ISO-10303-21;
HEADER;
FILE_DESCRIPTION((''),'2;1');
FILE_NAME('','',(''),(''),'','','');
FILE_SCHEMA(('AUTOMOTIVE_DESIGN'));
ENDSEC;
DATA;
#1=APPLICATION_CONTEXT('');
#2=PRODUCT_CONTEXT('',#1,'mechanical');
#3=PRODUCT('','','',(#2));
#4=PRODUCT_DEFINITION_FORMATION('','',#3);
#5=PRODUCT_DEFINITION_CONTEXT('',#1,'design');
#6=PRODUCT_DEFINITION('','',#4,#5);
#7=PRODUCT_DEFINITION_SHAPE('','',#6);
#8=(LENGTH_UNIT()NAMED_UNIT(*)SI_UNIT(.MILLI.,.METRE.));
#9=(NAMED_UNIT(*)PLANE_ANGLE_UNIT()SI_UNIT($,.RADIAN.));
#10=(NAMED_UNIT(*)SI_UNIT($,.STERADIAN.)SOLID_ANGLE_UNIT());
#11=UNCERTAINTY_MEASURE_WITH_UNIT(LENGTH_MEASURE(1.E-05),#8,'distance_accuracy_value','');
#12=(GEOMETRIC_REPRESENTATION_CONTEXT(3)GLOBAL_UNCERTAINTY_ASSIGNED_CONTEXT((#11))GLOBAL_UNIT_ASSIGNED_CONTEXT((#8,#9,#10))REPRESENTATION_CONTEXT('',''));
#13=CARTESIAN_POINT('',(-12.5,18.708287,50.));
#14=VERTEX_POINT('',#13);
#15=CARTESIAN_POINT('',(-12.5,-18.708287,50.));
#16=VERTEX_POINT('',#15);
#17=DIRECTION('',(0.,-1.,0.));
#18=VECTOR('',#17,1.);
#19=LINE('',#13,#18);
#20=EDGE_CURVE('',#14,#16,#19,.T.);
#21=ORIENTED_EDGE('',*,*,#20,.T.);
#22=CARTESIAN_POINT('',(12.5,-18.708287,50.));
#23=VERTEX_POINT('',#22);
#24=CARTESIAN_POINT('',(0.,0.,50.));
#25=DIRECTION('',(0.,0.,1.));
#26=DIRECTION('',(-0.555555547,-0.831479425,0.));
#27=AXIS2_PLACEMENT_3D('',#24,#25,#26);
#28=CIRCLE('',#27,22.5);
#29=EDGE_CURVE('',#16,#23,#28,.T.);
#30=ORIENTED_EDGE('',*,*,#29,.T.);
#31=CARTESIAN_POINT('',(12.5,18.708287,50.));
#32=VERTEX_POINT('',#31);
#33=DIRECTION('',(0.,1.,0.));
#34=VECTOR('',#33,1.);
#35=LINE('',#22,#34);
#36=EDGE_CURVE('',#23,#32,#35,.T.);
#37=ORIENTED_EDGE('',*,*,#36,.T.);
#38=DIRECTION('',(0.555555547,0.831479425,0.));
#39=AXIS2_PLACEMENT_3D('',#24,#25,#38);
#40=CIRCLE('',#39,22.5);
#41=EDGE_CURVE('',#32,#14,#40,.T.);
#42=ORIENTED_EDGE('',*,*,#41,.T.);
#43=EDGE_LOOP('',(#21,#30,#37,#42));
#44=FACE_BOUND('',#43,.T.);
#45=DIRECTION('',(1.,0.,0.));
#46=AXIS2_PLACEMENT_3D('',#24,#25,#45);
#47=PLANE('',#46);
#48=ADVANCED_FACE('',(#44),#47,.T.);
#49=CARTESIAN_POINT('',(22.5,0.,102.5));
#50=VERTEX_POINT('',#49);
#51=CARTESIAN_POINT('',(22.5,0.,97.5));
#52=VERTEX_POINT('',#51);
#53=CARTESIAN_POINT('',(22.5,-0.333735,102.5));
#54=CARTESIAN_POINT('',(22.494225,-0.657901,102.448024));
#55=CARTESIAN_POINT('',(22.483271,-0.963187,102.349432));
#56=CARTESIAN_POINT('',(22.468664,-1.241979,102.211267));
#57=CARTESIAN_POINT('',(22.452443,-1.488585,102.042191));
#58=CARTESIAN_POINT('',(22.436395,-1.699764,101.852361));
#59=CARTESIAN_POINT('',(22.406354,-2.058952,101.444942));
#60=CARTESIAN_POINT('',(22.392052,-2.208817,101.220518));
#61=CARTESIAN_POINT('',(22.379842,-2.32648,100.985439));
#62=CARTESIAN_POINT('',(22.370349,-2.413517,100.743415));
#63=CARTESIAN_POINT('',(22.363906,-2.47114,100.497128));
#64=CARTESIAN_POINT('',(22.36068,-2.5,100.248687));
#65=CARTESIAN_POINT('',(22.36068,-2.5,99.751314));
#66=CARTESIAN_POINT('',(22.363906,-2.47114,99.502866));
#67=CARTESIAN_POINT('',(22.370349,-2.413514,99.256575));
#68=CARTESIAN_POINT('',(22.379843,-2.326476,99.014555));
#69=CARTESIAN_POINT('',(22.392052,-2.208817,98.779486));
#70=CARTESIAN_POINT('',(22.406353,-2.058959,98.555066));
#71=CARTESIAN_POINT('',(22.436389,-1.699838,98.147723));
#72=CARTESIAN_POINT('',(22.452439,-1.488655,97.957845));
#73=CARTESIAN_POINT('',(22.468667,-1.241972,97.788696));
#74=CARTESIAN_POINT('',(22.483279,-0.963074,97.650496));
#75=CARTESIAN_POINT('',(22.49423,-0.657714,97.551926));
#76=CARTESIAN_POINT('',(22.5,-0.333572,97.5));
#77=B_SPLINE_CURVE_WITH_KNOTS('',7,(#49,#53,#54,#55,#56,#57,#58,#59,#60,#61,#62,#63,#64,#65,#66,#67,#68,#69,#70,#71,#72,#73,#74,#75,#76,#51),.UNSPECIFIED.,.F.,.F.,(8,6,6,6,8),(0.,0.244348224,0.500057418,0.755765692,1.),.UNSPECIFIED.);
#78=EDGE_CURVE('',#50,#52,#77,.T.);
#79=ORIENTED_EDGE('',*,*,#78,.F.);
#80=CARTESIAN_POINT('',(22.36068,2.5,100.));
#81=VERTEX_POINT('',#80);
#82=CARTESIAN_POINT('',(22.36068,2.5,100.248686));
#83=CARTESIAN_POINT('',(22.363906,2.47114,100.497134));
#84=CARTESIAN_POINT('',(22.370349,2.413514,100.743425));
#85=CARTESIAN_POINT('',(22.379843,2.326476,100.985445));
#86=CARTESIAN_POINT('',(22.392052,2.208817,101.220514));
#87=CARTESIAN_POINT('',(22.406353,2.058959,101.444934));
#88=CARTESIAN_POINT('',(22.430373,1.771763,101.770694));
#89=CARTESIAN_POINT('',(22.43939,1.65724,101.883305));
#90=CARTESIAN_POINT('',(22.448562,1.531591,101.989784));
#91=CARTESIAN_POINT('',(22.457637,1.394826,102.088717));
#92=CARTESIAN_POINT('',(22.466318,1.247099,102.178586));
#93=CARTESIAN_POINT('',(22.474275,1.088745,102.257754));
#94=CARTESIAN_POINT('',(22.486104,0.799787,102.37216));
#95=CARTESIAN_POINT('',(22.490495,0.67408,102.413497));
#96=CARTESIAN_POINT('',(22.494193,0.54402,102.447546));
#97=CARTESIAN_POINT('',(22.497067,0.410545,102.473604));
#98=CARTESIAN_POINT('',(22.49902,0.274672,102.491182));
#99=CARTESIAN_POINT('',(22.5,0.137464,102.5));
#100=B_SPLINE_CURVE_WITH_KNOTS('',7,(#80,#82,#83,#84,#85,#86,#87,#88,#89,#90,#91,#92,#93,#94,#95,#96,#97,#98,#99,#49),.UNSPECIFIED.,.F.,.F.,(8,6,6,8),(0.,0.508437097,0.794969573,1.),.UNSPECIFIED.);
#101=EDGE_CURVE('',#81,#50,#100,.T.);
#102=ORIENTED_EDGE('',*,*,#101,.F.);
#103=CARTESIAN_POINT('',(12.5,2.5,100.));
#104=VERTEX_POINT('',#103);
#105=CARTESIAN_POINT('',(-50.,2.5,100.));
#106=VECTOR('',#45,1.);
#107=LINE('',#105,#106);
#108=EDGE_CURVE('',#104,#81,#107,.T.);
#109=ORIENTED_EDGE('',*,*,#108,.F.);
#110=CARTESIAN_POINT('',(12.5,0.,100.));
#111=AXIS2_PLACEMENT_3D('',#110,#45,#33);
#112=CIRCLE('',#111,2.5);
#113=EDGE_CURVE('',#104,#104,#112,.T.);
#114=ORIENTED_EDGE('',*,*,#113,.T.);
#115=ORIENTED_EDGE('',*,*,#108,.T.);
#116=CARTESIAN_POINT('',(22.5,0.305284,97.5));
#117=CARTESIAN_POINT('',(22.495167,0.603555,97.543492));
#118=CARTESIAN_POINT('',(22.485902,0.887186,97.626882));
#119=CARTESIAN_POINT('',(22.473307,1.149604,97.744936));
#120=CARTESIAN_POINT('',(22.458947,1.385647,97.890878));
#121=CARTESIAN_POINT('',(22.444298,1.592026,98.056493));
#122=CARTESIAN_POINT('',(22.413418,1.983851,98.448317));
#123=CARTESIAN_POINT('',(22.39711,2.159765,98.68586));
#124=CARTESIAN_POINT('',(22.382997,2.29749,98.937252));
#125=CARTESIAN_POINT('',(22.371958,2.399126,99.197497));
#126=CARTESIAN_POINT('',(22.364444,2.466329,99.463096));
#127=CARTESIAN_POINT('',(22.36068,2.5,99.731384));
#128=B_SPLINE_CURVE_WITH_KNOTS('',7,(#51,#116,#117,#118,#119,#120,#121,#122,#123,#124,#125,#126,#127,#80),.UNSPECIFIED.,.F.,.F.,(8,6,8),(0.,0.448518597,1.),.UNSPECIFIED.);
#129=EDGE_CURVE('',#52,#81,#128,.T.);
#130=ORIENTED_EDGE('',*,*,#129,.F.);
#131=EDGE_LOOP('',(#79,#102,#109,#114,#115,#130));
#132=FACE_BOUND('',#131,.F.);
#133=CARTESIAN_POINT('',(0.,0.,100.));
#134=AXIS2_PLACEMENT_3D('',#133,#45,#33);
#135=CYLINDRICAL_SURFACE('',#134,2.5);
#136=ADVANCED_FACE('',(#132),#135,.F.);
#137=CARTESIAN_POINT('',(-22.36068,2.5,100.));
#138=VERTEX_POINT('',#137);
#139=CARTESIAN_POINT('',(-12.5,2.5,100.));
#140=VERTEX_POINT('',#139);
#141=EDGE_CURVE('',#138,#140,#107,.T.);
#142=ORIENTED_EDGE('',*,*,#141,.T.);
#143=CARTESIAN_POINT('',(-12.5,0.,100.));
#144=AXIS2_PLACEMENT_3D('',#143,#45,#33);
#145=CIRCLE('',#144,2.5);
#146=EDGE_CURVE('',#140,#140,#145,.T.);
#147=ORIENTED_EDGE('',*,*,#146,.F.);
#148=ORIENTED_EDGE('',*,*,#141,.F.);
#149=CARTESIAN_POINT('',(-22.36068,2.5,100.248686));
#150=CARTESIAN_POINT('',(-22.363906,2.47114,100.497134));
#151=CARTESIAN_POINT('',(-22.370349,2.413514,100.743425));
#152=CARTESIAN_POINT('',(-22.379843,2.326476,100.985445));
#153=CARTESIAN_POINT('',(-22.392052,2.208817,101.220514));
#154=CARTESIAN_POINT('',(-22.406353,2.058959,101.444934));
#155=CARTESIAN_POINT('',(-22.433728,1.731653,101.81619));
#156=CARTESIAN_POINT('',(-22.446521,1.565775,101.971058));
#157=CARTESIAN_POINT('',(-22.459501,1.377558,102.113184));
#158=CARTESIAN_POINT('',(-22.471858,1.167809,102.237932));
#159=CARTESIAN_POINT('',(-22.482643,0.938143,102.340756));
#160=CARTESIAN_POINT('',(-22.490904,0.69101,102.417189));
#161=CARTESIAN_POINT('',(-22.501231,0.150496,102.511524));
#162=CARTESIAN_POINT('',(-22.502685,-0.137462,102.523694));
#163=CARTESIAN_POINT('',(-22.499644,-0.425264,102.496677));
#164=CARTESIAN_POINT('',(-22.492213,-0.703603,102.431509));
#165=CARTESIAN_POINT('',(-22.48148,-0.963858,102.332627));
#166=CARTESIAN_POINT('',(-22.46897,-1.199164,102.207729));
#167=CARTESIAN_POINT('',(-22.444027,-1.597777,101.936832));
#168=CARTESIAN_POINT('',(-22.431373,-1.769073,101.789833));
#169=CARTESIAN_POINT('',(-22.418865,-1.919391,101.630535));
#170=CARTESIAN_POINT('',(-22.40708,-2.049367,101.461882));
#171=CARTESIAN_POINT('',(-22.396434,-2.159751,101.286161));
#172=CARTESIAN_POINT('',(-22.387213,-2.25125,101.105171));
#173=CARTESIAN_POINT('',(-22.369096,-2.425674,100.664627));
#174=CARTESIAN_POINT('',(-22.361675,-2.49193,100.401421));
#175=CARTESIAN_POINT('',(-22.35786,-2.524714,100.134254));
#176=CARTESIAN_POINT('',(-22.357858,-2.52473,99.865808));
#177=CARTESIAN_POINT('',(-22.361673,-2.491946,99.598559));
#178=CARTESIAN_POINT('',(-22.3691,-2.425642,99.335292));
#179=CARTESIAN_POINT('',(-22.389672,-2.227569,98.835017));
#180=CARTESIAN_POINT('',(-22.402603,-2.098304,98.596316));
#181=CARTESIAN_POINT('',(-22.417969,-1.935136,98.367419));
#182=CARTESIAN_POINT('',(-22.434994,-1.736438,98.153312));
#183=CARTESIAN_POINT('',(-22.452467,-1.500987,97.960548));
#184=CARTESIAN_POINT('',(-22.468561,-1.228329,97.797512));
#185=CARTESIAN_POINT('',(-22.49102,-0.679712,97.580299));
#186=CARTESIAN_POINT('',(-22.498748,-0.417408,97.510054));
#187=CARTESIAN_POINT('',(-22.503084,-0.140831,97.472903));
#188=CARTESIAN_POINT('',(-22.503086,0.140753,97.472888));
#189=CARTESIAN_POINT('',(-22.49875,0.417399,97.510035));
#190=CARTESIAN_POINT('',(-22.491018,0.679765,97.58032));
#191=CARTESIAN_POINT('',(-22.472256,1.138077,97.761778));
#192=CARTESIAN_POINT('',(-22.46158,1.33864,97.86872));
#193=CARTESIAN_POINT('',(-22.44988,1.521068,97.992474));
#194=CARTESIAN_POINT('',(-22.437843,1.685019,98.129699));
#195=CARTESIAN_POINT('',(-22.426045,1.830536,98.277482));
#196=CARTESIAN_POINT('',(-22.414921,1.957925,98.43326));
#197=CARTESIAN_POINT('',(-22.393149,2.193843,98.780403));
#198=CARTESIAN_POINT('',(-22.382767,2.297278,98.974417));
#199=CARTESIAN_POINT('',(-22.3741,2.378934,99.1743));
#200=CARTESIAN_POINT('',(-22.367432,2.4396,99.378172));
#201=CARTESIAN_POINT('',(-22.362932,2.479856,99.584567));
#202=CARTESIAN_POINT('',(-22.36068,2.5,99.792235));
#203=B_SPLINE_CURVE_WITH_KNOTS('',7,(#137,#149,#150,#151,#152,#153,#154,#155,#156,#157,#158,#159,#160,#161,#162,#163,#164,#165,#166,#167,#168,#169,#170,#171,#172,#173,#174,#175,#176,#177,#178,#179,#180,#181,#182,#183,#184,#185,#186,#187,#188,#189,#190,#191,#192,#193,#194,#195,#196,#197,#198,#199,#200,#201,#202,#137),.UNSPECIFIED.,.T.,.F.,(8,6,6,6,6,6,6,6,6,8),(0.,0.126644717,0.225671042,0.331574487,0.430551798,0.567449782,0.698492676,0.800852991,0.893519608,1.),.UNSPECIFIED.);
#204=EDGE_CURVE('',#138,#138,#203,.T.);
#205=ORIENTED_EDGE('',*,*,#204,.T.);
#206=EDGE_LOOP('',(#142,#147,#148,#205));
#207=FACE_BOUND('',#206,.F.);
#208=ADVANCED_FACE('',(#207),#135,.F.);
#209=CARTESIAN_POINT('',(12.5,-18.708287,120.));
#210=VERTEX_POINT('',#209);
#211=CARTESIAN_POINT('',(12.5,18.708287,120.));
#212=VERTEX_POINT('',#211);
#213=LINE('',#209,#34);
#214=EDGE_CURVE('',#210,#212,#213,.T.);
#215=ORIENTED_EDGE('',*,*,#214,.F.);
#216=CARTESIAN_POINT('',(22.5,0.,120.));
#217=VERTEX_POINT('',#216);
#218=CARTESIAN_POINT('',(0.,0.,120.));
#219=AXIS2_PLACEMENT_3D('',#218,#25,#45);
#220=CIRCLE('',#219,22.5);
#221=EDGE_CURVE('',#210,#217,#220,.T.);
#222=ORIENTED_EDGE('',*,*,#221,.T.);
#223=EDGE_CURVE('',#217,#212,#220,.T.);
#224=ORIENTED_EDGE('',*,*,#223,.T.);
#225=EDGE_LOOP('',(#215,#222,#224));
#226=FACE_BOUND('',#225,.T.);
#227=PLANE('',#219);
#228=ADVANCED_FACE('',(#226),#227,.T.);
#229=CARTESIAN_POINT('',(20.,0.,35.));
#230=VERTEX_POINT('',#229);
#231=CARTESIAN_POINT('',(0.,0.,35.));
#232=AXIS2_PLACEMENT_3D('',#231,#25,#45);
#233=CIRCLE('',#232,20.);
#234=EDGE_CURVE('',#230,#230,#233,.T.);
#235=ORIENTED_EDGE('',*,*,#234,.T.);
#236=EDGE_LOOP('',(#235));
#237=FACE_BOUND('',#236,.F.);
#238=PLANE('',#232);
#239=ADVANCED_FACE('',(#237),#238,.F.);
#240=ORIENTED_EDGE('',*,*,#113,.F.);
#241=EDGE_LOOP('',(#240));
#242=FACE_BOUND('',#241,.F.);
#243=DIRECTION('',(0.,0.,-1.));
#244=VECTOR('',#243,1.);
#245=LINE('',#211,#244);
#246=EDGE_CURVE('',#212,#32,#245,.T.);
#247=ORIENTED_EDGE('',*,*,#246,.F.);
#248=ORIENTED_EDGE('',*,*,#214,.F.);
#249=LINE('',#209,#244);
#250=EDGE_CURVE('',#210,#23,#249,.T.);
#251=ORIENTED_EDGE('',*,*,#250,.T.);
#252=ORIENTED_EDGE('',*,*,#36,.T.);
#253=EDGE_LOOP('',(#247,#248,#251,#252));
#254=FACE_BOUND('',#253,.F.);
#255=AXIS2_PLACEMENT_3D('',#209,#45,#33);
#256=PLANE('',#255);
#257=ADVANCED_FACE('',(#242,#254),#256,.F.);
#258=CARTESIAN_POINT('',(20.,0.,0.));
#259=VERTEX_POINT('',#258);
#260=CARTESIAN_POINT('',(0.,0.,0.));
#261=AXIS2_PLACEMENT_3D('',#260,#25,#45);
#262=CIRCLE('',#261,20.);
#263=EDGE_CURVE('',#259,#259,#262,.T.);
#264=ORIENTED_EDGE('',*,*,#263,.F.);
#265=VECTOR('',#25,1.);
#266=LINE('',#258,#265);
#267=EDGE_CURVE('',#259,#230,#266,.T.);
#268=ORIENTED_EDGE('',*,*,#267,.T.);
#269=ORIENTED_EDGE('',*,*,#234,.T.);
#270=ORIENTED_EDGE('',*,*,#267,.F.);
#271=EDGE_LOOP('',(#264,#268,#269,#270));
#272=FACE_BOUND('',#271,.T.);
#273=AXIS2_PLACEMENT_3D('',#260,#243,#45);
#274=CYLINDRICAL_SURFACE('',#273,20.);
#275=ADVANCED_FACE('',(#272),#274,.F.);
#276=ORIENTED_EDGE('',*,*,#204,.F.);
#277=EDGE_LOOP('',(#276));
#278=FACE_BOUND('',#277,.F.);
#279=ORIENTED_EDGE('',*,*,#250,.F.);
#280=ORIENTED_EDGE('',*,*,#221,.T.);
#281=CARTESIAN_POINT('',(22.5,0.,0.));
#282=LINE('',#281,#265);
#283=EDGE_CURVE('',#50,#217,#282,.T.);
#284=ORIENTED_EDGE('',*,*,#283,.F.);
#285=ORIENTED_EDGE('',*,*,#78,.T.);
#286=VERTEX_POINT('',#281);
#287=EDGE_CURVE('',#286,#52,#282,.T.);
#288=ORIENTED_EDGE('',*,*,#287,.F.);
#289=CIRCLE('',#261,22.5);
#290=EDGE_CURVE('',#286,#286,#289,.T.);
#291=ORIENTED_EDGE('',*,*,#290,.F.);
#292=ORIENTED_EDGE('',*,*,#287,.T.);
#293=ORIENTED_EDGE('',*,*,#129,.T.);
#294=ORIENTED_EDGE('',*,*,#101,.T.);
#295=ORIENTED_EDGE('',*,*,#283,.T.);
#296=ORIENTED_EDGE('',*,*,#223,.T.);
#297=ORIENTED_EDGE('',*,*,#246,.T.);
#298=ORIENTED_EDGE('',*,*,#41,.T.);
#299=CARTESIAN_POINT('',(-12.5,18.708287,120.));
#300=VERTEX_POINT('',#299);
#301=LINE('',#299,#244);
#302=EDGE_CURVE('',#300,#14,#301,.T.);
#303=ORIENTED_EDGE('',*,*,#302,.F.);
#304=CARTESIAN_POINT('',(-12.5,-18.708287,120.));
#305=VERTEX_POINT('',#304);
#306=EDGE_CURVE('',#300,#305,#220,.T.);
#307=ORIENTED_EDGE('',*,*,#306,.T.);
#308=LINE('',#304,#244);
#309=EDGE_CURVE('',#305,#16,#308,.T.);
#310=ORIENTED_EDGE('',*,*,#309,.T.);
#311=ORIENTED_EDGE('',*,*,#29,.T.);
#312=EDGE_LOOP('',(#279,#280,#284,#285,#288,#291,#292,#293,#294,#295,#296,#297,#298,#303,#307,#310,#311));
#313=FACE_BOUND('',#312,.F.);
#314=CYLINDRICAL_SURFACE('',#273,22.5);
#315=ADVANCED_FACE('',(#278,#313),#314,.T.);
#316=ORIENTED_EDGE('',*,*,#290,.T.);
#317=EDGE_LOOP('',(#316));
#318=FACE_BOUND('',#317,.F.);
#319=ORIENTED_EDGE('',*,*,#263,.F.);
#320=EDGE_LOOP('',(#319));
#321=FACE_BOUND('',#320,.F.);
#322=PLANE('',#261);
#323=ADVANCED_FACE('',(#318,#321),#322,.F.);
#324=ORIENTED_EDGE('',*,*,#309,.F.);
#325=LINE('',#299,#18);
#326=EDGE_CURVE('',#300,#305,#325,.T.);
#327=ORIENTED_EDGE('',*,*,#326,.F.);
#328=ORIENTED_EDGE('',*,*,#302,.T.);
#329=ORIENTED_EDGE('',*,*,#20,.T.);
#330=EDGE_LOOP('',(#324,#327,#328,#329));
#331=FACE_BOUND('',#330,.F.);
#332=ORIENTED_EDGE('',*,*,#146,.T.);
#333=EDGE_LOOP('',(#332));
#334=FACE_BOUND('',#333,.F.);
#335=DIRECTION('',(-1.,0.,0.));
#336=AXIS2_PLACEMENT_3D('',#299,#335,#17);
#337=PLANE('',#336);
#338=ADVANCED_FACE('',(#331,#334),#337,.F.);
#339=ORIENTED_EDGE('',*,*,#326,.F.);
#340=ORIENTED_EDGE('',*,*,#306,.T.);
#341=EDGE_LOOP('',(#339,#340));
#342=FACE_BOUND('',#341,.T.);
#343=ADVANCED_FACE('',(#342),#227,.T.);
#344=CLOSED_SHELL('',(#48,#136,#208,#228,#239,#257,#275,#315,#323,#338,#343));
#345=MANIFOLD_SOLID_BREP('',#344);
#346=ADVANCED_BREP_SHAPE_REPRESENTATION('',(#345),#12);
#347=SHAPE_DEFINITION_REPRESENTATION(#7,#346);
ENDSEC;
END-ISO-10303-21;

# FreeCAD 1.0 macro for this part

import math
import FreeCAD as App
import Part
import Sketcher

doc = App.newDocument("Part")
body = doc.addObject("PartDesign::Body", "Body")

# Sketch on XY plane
sketch1 = body.newObject("Sketcher::SketchObject", "Sketch")
sketch1.AttachmentSupport = (doc.getObject("XY_Plane"), [""])
sketch1.MapMode = "FlatFace"
sketch1.addGeometry(Part.Circle(App.Vector(0, 0, 0), App.Vector(0, 0, 1), 22), False)
sketch1.addConstraint([
    Sketcher.Constraint("Coincident", 0, 3, -1, 1),
    Sketcher.Constraint("Diameter", 0, 45.0),
])
pad1 = body.newObject("PartDesign::Pad", "Pad")
pad1.Profile = sketch1
pad1.Length = 120

# Sketch on XY plane
sketch2 = body.newObject("Sketcher::SketchObject", "Sketch001")
sketch2.AttachmentSupport = (doc.getObject("XY_Plane"), [""])
sketch2.MapMode = "FlatFace"
sketch2.AttachmentOffset = App.Placement(App.Vector(0, 0, 120), App.Rotation())
sketch2.addGeometry([
    Part.ArcOfCircle(Part.Circle(App.Vector(0, 0, 0), App.Vector(0, 0, 1), 23), math.radians(56), math.radians(124)),
    Part.LineSegment(App.Vector(-12, 19, 0), App.Vector(-12, -19, 0)),
    Part.ArcOfCircle(Part.Circle(App.Vector(0, 0, 0), App.Vector(0, 0, 1), 23), math.radians(-124), math.radians(-56)),
    Part.LineSegment(App.Vector(12, -19, 0), App.Vector(12, 19, 0)),
], False)
sketch2.addConstraint([
    Sketcher.Constraint("Coincident", 0, 2, 1, 1),
    Sketcher.Constraint("Coincident", 1, 2, 2, 1),
    Sketcher.Constraint("Coincident", 2, 2, 3, 1),
    Sketcher.Constraint("Coincident", 3, 2, 0, 1),
    Sketcher.Constraint("Vertical", 1),
    Sketcher.Constraint("Vertical", 3),
    Sketcher.Constraint("Coincident", 0, 3, -1, 1),
    Sketcher.Constraint("Coincident", 2, 3, -1, 1),
    Sketcher.Constraint("Equal", 0, 2),
    Sketcher.Constraint("Horizontal", 1, 2, 2, 2),
    Sketcher.Constraint("Radius", 0, 22.5),
    Sketcher.Constraint("DistanceX", 1, 2, 2, 2, 25.0),
])
pocket1 = body.newObject("PartDesign::Pocket", "Pocket")
pocket1.Profile = sketch2
pocket1.Length = 70

# Sketch on XY plane
sketch3 = body.newObject("Sketcher::SketchObject", "Sketch002")
sketch3.AttachmentSupport = (doc.getObject("XY_Plane"), [""])
sketch3.MapMode = "FlatFace"
sketch3.addGeometry(Part.Circle(App.Vector(0, 0, 0), App.Vector(0, 0, 1), 20), False)
sketch3.addConstraint([
    Sketcher.Constraint("Coincident", 0, 3, -1, 1),
    Sketcher.Constraint("Diameter", 0, 40.0),
])
pocket2 = body.newObject("PartDesign::Pocket", "Pocket001")
pocket2.Profile = sketch3
pocket2.Length = 35
pocket2.Reversed = True

# Sketch on YZ plane
sketch4 = body.newObject("Sketcher::SketchObject", "Sketch003")
sketch4.AttachmentSupport = (doc.getObject("YZ_Plane"), [""])
sketch4.MapMode = "FlatFace"
sketch4.addGeometry(Part.Circle(App.Vector(0, 100, 0), App.Vector(0, 0, 1), 2.5), False)
sketch4.addConstraint([
    Sketcher.Constraint("PointOnObject", 0, 3, -2),
    Sketcher.Constraint("Diameter", 0, 5.0),
    Sketcher.Constraint("DistanceY", -1, 1, 0, 3, 100.0),
])
pocket3 = body.newObject("PartDesign::Pocket", "Pocket002")
pocket3.Profile = sketch4
pocket3.Length = 100
pocket3.Midplane = True

doc.recompute()
